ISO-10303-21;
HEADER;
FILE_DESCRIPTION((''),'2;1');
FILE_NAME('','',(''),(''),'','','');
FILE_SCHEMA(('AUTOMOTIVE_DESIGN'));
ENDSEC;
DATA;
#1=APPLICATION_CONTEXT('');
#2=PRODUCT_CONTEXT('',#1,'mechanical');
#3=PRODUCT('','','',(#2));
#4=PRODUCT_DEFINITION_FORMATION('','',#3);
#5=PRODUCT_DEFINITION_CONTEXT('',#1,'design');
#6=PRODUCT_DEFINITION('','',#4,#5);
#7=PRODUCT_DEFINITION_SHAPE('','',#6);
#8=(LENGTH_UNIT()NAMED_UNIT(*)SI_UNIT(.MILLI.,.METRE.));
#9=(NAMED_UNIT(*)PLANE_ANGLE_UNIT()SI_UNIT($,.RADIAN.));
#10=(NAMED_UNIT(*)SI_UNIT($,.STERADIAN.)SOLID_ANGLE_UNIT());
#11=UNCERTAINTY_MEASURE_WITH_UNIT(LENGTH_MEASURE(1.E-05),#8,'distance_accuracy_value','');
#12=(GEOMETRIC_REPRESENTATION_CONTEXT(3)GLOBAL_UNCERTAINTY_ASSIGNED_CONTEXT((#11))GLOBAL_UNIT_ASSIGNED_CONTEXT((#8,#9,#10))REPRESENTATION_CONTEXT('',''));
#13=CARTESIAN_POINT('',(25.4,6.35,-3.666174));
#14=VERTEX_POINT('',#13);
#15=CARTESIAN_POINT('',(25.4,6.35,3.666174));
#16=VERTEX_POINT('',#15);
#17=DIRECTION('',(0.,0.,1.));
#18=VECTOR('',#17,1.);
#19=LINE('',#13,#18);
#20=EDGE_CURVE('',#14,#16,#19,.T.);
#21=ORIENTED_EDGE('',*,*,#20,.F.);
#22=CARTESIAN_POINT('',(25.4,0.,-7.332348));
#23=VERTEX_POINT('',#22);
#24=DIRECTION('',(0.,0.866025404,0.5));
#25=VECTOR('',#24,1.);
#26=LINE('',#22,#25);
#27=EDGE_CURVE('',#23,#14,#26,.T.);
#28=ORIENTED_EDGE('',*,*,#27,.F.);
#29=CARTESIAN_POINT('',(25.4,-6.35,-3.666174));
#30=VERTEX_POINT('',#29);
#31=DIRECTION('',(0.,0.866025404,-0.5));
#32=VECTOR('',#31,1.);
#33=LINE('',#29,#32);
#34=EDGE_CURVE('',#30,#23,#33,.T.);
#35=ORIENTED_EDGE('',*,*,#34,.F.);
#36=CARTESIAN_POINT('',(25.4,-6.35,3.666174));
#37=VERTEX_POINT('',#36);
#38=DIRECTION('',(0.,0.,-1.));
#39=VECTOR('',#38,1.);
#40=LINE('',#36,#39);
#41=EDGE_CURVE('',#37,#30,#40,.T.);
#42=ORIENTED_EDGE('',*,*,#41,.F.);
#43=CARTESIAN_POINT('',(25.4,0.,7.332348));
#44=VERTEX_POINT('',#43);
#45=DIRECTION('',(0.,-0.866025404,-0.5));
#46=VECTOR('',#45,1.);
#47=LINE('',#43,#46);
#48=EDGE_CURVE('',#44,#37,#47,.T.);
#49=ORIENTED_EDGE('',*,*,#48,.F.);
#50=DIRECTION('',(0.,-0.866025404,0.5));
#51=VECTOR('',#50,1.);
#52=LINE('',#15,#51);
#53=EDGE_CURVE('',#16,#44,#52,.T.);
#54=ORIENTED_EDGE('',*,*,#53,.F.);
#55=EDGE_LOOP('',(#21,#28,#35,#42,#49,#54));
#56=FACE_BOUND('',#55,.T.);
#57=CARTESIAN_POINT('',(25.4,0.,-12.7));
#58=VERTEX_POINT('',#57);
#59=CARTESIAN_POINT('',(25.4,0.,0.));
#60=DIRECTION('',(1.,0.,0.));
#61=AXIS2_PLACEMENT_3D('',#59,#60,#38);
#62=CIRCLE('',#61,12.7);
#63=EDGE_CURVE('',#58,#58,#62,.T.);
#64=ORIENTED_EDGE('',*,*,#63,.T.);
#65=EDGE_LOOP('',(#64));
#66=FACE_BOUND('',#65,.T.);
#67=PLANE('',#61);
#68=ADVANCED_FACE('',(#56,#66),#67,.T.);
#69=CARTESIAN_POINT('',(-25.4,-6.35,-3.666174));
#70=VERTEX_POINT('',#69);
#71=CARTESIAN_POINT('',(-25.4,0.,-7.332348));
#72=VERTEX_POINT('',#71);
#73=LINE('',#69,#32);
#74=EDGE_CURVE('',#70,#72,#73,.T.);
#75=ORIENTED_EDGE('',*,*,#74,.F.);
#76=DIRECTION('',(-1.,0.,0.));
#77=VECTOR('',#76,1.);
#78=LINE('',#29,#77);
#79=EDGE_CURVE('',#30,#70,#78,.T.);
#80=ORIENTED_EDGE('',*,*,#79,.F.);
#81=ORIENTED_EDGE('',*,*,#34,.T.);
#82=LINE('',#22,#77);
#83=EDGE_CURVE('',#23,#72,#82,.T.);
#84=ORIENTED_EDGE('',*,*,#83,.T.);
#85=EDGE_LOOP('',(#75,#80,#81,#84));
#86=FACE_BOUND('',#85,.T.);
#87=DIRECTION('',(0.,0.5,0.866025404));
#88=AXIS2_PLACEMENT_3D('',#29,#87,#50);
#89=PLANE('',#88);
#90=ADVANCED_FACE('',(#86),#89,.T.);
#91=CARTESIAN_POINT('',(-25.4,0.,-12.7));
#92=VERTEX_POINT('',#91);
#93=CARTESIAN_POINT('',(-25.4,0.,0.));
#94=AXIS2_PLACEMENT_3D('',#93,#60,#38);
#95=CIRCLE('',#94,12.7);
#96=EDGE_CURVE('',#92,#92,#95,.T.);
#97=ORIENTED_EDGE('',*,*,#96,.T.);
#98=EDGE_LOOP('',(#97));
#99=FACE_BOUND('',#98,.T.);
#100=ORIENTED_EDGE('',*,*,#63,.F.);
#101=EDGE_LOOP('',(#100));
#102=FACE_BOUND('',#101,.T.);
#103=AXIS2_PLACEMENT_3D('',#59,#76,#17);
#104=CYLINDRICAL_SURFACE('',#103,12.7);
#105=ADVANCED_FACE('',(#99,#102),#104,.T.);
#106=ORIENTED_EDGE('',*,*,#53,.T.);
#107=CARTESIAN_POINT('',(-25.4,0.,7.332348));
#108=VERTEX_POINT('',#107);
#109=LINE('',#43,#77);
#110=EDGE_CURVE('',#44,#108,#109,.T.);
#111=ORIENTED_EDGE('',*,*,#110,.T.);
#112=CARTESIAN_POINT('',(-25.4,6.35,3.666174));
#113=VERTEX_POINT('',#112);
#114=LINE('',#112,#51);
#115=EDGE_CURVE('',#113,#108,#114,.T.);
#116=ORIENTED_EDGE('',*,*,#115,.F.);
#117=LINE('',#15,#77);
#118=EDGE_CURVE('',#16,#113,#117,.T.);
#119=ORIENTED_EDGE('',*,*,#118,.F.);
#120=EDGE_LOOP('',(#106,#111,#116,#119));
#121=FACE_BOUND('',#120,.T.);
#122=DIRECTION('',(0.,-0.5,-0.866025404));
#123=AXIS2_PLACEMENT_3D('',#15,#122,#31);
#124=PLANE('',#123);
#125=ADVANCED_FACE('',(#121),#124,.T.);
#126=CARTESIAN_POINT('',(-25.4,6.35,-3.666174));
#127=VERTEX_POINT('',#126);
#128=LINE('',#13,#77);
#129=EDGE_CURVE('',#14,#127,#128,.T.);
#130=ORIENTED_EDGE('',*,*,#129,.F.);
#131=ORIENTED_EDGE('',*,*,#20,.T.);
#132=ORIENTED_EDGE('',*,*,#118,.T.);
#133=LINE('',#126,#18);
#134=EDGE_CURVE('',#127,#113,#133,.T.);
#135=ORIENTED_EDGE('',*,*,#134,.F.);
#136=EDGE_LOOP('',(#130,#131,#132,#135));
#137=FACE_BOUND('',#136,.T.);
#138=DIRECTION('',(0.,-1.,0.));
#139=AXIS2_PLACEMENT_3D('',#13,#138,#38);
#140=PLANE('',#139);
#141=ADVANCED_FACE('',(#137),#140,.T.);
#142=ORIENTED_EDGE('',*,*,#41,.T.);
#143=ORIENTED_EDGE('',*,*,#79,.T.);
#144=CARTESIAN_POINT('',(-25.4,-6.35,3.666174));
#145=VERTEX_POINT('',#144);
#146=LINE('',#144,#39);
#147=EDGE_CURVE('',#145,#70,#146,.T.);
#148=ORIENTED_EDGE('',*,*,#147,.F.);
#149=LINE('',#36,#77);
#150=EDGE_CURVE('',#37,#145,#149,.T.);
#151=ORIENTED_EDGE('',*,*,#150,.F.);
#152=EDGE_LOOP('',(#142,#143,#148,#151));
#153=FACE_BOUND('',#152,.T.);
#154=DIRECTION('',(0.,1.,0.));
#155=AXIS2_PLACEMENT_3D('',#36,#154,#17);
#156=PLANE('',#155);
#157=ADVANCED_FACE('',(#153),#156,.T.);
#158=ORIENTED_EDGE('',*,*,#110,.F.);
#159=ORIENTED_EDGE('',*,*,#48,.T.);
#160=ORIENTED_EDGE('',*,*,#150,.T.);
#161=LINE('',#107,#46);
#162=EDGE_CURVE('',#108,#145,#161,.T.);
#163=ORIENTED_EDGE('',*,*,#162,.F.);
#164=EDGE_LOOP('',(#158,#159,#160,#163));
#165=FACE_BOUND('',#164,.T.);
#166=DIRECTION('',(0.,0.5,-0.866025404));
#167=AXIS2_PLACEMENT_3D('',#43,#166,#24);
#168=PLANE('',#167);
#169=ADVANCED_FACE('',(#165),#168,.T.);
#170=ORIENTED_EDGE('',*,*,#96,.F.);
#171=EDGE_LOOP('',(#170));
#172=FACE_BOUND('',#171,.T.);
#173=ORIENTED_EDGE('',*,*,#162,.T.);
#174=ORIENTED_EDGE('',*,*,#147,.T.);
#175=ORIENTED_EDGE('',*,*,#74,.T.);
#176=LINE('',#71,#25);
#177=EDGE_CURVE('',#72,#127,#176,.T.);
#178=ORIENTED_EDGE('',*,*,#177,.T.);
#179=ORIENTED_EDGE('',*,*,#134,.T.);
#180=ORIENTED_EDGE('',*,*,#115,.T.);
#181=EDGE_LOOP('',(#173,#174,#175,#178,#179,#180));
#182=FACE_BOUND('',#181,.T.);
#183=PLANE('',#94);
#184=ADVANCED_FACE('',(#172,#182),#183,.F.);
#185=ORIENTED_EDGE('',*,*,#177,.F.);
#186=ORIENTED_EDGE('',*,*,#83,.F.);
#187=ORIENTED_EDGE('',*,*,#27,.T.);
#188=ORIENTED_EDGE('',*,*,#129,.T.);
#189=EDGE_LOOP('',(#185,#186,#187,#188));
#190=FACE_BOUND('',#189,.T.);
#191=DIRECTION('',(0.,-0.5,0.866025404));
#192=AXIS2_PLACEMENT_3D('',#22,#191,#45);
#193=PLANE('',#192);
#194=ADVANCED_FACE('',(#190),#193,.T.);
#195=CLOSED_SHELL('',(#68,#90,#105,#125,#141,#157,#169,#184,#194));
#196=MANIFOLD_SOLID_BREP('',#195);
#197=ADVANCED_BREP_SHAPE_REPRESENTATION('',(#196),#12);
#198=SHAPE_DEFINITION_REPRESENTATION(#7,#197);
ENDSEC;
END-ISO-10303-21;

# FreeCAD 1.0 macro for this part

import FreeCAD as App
import Part
import Sketcher
Q = App.Units.Quantity

doc = App.newDocument("Part")
params = doc.addObject("Spreadsheet::Sheet", "Params")
for row, (alias, value) in enumerate([
    ("sketch1_diameter", "1 in"),
    ("pad1_length", "2 in"),
], start=1):
    params.set(f"A{row}", alias)
    params.set(f"B{row}", "=" + value)
    params.setAlias(f"B{row}", alias)

body = doc.addObject("PartDesign::Body", "Body")

# Sketch on YZ plane
sketch1 = doc.addObject("Sketcher::SketchObject", "Sketch")
body.addObject(sketch1)
sketch1.AttachmentSupport = (doc.YZ_Plane, [""])
sketch1.MapMode = "FlatFace"
sketch1.addGeometry([
    Part.Circle(App.Vector(0, 0, 0), App.Vector(0, 0, 1), 13),  # 0
    Part.LineSegment(App.Vector(6, -4, 0), App.Vector(0, -7, 0)),  # 1
    Part.LineSegment(App.Vector(0, -7, 0), App.Vector(-6, -4, 0)),  # 2
    Part.LineSegment(App.Vector(-6, -4, 0), App.Vector(-6, 4, 0)),  # 3
    Part.LineSegment(App.Vector(-6, 4, 0), App.Vector(0, 7, 0)),  # 4
    Part.LineSegment(App.Vector(0, 7, 0), App.Vector(6, 4, 0)),  # 5
    Part.LineSegment(App.Vector(6, 4, 0), App.Vector(6, -4, 0)),  # 6
], False)
sketch1.addConstraint([
    Sketcher.Constraint("Coincident", 1, 2, 2, 1),
    Sketcher.Constraint("Coincident", 2, 2, 3, 1),
    Sketcher.Constraint("Coincident", 3, 2, 4, 1),
    Sketcher.Constraint("Coincident", 4, 2, 5, 1),
    Sketcher.Constraint("Coincident", 5, 2, 6, 1),
    Sketcher.Constraint("Coincident", 6, 2, 1, 1),
    Sketcher.Constraint("Vertical", 3),
    Sketcher.Constraint("Vertical", 6),
    Sketcher.Constraint("Coincident", 0, 3, -1, 1),
    Sketcher.Constraint("Symmetric", 1, 2, 4, 2, -1, 1),
    Sketcher.Constraint("Symmetric", 2, 2, 5, 2, -1, 1),
    Sketcher.Constraint("PointOnObject", 1, 2, -2),
    Sketcher.Constraint("Parallel", 1, 4),
    Sketcher.Constraint("Horizontal", 3, 2, 5, 2),
    Sketcher.Constraint("Diameter", 0, Q("1 in")),
    Sketcher.Constraint("Angle", 1, Q("-150 deg")),
    Sketcher.Constraint("DistanceX", 3, 2, 5, 2, Q("0.5 in")),
    Sketcher.Constraint("DistanceY", 3, 1, 3, 2, 7.332348),
])
sketch1.setExpression("Constraints[14]", "Params.sketch1_diameter")
pad1 = doc.addObject("PartDesign::Pad", "Pad")
body.addObject(pad1)
pad1.Profile = sketch1
pad1.setExpression("Length", "Params.pad1_length")
pad1.Midplane = True

doc.recompute()
